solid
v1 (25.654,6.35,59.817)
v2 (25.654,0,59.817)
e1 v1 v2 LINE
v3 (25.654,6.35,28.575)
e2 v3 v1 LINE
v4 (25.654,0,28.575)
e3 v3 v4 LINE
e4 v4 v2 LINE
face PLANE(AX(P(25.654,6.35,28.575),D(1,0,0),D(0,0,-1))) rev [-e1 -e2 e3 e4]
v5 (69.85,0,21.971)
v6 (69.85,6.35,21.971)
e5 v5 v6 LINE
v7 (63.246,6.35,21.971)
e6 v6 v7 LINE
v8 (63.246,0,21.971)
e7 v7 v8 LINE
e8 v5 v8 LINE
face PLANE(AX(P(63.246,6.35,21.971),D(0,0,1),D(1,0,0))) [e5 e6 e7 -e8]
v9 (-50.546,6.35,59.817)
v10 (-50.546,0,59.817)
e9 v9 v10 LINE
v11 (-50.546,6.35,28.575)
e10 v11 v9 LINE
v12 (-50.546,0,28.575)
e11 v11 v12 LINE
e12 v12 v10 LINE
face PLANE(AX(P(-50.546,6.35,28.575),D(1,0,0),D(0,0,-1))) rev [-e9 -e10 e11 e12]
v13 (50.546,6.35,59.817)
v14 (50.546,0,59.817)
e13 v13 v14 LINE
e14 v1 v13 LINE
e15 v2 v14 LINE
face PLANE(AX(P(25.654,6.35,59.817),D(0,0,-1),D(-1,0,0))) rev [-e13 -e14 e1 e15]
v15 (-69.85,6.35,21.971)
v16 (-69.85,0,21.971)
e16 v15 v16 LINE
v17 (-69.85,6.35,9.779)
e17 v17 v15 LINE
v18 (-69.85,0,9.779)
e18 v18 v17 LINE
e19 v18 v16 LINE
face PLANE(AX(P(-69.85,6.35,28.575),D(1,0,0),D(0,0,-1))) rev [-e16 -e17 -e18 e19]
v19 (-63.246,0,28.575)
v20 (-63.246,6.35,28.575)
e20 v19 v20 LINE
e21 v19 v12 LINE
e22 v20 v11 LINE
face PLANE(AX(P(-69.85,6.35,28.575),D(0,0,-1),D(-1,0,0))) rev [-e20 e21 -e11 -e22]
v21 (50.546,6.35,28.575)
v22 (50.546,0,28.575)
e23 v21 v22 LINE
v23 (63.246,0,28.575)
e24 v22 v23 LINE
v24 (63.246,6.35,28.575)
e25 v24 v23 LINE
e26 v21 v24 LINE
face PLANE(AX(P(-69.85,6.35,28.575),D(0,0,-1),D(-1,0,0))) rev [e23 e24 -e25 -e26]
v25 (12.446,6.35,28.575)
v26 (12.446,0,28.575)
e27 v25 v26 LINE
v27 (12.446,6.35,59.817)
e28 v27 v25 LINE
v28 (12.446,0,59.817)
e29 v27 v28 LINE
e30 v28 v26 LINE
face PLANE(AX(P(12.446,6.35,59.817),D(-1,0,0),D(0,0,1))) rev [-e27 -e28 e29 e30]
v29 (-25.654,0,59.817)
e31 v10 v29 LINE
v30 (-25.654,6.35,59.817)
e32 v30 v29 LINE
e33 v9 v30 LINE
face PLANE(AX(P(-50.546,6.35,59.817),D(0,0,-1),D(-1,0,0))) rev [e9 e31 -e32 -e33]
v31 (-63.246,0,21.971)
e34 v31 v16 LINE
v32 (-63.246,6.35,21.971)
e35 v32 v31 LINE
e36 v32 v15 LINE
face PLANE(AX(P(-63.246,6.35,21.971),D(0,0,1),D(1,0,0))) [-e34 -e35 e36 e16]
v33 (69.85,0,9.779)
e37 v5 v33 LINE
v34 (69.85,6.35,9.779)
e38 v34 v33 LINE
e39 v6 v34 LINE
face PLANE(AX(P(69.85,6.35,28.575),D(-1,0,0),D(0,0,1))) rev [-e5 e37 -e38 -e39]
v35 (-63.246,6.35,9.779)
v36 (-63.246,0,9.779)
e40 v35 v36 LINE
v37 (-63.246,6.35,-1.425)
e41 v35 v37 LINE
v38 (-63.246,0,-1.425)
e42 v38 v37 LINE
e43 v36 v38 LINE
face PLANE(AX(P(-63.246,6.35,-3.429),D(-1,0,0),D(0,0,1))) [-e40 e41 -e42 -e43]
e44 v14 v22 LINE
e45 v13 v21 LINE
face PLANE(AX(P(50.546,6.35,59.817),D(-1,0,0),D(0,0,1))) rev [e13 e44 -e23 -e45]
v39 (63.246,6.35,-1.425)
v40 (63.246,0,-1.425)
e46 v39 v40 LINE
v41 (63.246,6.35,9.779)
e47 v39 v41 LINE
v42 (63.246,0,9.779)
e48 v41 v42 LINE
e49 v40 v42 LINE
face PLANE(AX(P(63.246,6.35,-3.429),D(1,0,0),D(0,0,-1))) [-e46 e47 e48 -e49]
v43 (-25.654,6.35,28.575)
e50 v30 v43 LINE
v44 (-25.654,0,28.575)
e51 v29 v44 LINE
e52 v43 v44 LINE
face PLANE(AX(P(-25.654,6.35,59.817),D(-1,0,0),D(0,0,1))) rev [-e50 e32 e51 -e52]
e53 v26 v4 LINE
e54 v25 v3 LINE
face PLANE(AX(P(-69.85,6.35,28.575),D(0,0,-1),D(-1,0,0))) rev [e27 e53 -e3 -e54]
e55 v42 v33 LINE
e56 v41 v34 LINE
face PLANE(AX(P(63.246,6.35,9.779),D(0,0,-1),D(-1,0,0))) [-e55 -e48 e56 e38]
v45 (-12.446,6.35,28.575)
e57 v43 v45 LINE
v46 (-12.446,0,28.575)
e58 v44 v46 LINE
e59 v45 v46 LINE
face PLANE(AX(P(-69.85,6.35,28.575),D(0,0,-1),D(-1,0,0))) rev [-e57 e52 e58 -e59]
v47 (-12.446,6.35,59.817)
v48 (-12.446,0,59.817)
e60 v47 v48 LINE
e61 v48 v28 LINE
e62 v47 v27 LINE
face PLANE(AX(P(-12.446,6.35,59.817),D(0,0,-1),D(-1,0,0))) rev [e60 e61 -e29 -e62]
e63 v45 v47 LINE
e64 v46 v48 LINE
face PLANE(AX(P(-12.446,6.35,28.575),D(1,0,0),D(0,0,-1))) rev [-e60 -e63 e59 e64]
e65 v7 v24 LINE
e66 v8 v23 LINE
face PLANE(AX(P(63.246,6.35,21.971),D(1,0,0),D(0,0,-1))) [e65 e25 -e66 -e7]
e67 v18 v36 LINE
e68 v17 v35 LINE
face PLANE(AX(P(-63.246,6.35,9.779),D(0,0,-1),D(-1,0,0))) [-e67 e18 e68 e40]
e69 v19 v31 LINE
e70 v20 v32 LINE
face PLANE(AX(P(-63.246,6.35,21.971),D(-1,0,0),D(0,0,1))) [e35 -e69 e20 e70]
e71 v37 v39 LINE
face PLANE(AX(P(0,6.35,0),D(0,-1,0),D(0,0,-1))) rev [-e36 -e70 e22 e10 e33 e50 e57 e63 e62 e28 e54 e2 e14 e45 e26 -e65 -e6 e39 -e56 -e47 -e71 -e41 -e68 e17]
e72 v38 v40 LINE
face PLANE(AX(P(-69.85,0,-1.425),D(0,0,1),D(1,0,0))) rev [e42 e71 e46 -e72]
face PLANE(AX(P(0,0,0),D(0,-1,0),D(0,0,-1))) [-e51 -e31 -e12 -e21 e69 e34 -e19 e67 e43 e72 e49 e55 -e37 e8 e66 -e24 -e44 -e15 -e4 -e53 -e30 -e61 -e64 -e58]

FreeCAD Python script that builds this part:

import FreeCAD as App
import Part
import Sketcher
Q = App.Units.Quantity


def add_polygon(sketch, points):
    """Adds a closed chain of lines whose ends are joined by coincident constraints."""
    first, n = sketch.GeometryCount, len(points)
    for a, b in zip(points, points[1:] + points[:1]):
        sketch.addGeometry(Part.LineSegment(App.Vector(*a, 0), App.Vector(*b, 0)), False)
    for i in range(n):
        sketch.addConstraint(Sketcher.Constraint("Coincident", first + i, 2, first + (i + 1) % n, 1))

doc = App.newDocument("Part")
body = doc.addObject("PartDesign::Body", "Body")

# Sketch on XZ plane
sketch1 = doc.addObject("Sketcher::SketchObject", "Sketch")
body.addObject(sketch1)
sketch1.AttachmentSupport = (doc.XZ_Plane, [""])
sketch1.MapMode = "FlatFace"
add_polygon(sketch1, [(-70, -29), (-70, 29), (70, 29), (70, -29)])  # lines 0-3
sketch1.addConstraint(Sketcher.Constraint("Vertical", 0))
sketch1.addConstraint(Sketcher.Constraint("Horizontal", 1))
sketch1.addConstraint(Sketcher.Constraint("Vertical", 2))
sketch1.addConstraint(Sketcher.Constraint("Horizontal", 3))
sketch1.addConstraint(Sketcher.Constraint("Symmetric", 0, 2, 2, 2, -1, 1))
sketch1.addConstraint(Sketcher.Constraint("DistanceX", 1, 1, 1, 2, Q("5.5 in")))
sketch1.addConstraint(Sketcher.Constraint("DistanceY", 0, 1, 0, 2, Q("2.25 in")))
pad1 = doc.addObject("PartDesign::Pad", "Pad")
body.addObject(pad1)
pad1.Profile = sketch1
pad1.Length = Q("0.25 in")
pad1.Reversed = True

# Sketch on XZ plane
sketch2 = doc.addObject("Sketcher::SketchObject", "Sketch001")
body.addObject(sketch2)
sketch2.AttachmentSupport = (doc.XZ_Plane, [""])
sketch2.MapMode = "FlatFace"
add_polygon(sketch2, [(-51, 29), (-51, 60), (-26, 60), (-26, 29)])  # lines 0-3
add_polygon(sketch2, [(-12, 29), (-12, 60), (12, 60), (12, 29)])  # lines 4-7
add_polygon(sketch2, [(26, 29), (26, 60), (51, 60), (51, 29)])  # lines 8-11
sketch2.addConstraint(Sketcher.Constraint("Vertical", 0))
sketch2.addConstraint(Sketcher.Constraint("Horizontal", 1))
sketch2.addConstraint(Sketcher.Constraint("Vertical", 2))
sketch2.addConstraint(Sketcher.Constraint("Horizontal", 3))
sketch2.addConstraint(Sketcher.Constraint("Vertical", 4))
sketch2.addConstraint(Sketcher.Constraint("Horizontal", 5))
sketch2.addConstraint(Sketcher.Constraint("Vertical", 6))
sketch2.addConstraint(Sketcher.Constraint("Horizontal", 7))
sketch2.addConstraint(Sketcher.Constraint("Vertical", 8))
sketch2.addConstraint(Sketcher.Constraint("Horizontal", 9))
sketch2.addConstraint(Sketcher.Constraint("Vertical", 10))
sketch2.addConstraint(Sketcher.Constraint("Horizontal", 11))
sketch2.addConstraint(Sketcher.Constraint("Symmetric", 1, 2, 8, 2, -2))
sketch2.addConstraint(Sketcher.Constraint("Symmetric", 3, 2, 10, 2, -2))
sketch2.addConstraint(Sketcher.Constraint("Horizontal", 1, 2, 4, 2))
sketch2.addConstraint(Sketcher.Constraint("Horizontal", 3, 2, 6, 2))
sketch2.addConstraint(Sketcher.Constraint("Equal", 3, 5))
sketch2.addConstraint(Sketcher.Constraint("DistanceX", 1, 1, 1, 2, Q("0.98 in")))
sketch2.addConstraint(Sketcher.Constraint("DistanceY", 0, 1, 0, 2, Q("1.23 in")))
sketch2.addConstraint(Sketcher.Constraint("DistanceX", 0, 2, 4, 2, Q("1.5 in")))
sketch2.addConstraint(Sketcher.Constraint("DistanceX", 4, 2, 8, 2, Q("1.5 in")))
sketch2.addConstraint(Sketcher.Constraint("DistanceY", -1, 1, 0, 2, Q("2.355 in")))
pad2 = doc.addObject("PartDesign::Pad", "Pad001")
body.addObject(pad2)
pad2.Profile = sketch2
pad2.Length = Q("0.25 in")
pad2.Reversed = True

# Sketch on XZ plane
sketch3 = doc.addObject("Sketcher::SketchObject", "Sketch002")
body.addObject(sketch3)
sketch3.AttachmentSupport = (doc.XZ_Plane, [""])
sketch3.MapMode = "FlatFace"
add_polygon(sketch3, [(63, -29), (63, -16), (76, -16), (76, -29)])  # lines 0-3
add_polygon(sketch3, [(-76, 22), (-76, 35), (-63, 35), (-63, 22)])  # lines 4-7
add_polygon(sketch3, [(63, -3), (63, 10), (76, 10), (76, -3)])  # lines 8-11
add_polygon(sketch3, [(63, 22), (63, 35), (76, 35), (76, 22)])  # lines 12-15
add_polygon(sketch3, [(-76, -3), (-76, 10), (-63, 10), (-63, -3)])  # lines 16-19
add_polygon(sketch3, [(-76, -29), (-76, -16), (-63, -16), (-63, -29)])  # lines 20-23
sketch3.addConstraint(Sketcher.Constraint("Vertical", 0))
sketch3.addConstraint(Sketcher.Constraint("Horizontal", 1))
sketch3.addConstraint(Sketcher.Constraint("Vertical", 2))
sketch3.addConstraint(Sketcher.Constraint("Horizontal", 3))
sketch3.addConstraint(Sketcher.Constraint("Vertical", 4))
sketch3.addConstraint(Sketcher.Constraint("Horizontal", 5))
sketch3.addConstraint(Sketcher.Constraint("Vertical", 6))
sketch3.addConstraint(Sketcher.Constraint("Horizontal", 7))
sketch3.addConstraint(Sketcher.Constraint("Vertical", 8))
sketch3.addConstraint(Sketcher.Constraint("Horizontal", 9))
sketch3.addConstraint(Sketcher.Constraint("Vertical", 10))
sketch3.addConstraint(Sketcher.Constraint("Horizontal", 11))
sketch3.addConstraint(Sketcher.Constraint("Vertical", 12))
sketch3.addConstraint(Sketcher.Constraint("Horizontal", 13))
sketch3.addConstraint(Sketcher.Constraint("Vertical", 14))
sketch3.addConstraint(Sketcher.Constraint("Horizontal", 15))
sketch3.addConstraint(Sketcher.Constraint("Vertical", 16))
sketch3.addConstraint(Sketcher.Constraint("Horizontal", 17))
sketch3.addConstraint(Sketcher.Constraint("Vertical", 18))
sketch3.addConstraint(Sketcher.Constraint("Horizontal", 19))
sketch3.addConstraint(Sketcher.Constraint("Vertical", 20))
sketch3.addConstraint(Sketcher.Constraint("Horizontal", 21))
sketch3.addConstraint(Sketcher.Constraint("Vertical", 22))
sketch3.addConstraint(Sketcher.Constraint("Horizontal", 23))
sketch3.addConstraint(Sketcher.Constraint("Symmetric", 5, 2, 12, 2, -2))
sketch3.addConstraint(Sketcher.Constraint("Symmetric", 7, 2, 14, 2, -2))
sketch3.addConstraint(Sketcher.Constraint("Symmetric", 9, 2, 16, 2, -2))
sketch3.addConstraint(Sketcher.Constraint("Symmetric", 11, 2, 18, 2, -2))
sketch3.addConstraint(Sketcher.Constraint("Symmetric", 1, 2, 20, 2, -2))
sketch3.addConstraint(Sketcher.Constraint("Symmetric", 3, 2, 22, 2, -2))
sketch3.addConstraint(Sketcher.Constraint("Vertical", 3, 2, 8, 2))
sketch3.addConstraint(Sketcher.Constraint("Vertical", 2, 2, 9, 2))
sketch3.addConstraint(Sketcher.Constraint("Vertical", 11, 2, 12, 2))
sketch3.addConstraint(Sketcher.Constraint("Vertical", 10, 2, 13, 2))
sketch3.addConstraint(Sketcher.Constraint("Equal", 23, 0))
sketch3.addConstraint(Sketcher.Constraint("Equal", 2, 4))
sketch3.addConstraint(Sketcher.Constraint("Equal", 6, 8))
sketch3.addConstraint(Sketcher.Constraint("DistanceY", 0, 2, 4, 2, Q("2 in")))
sketch3.addConstraint(Sketcher.Constraint("DistanceY", 0, 2, 8, 2, Q("1 in")))
sketch3.addConstraint(Sketcher.Constraint("DistanceX", 1, 1, 1, 2, Q("0.52 in")))
sketch3.addConstraint(Sketcher.Constraint("DistanceX", 4, 2, 0, 2, Q("5.5 in")))
sketch3.addConstraint(Sketcher.Constraint("DistanceY", 0, 2, -1, 1, Q("0.615 in")))
pocket1 = doc.addObject("PartDesign::Pocket", "Pocket")
body.addObject(pocket1)
pocket1.Profile = sketch3
pocket1.Type = "ThroughAll"

# Sketch on XZ plane
sketch4 = doc.addObject("Sketcher::SketchObject", "Sketch003")
body.addObject(sketch4)
sketch4.AttachmentSupport = (doc.XZ_Plane, [""])
sketch4.MapMode = "FlatFace"
sketch4.AttachmentOffset = App.Placement(App.Vector(0, 0, -0.25 * 25.4), App.Rotation())
add_polygon(sketch4, [(-140, -29), (-140, -16), (156, -16), (156, -29)])  # lines 0-3
sketch4.addConstraint(Sketcher.Constraint("Vertical", 0))
sketch4.addConstraint(Sketcher.Constraint("Horizontal", 1))
sketch4.addConstraint(Sketcher.Constraint("Vertical", 2))
sketch4.addConstraint(Sketcher.Constraint("Horizontal", 3))
sketch4.addConstraint(Sketcher.Constraint("DistanceY", 0, 1, 0, 2, Q("0.5 in")))
sketch4.addConstraint(Sketcher.Constraint("DistanceY", 0, 2, -1, 1, Q("0.625 in")))
sketch4.addConstraint(Sketcher.Constraint("DistanceX", 1, 1, 1, 2, 295.464136))
sketch4.addConstraint(Sketcher.Constraint("DistanceX", -1, 1, 1, 2, 155.695321))
pocket2 = doc.addObject("PartDesign::Pocket", "Pocket001")
body.addObject(pocket2)
pocket2.Profile = sketch4
pocket2.Type = "ThroughAll"
pocket2.Reversed = True

# Sketch on XZ plane
sketch5 = doc.addObject("Sketcher::SketchObject", "Sketch004")
body.addObject(sketch5)
sketch5.AttachmentSupport = (doc.XZ_Plane, [""])
sketch5.MapMode = "FlatFace"
sketch5.AttachmentOffset = App.Placement(App.Vector(0, 0, -0.25 * 25.4), App.Rotation())
add_polygon(sketch5, [(-70, -16), (-70, -3), (70, -3), (70, -16)])  # lines 0-3
sketch5.addConstraint(Sketcher.Constraint("Vertical", 0))
sketch5.addConstraint(Sketcher.Constraint("Horizontal", 1))
sketch5.addConstraint(Sketcher.Constraint("Vertical", 2))
sketch5.addConstraint(Sketcher.Constraint("Horizontal", 3))
sketch5.addConstraint(Sketcher.Constraint("DistanceX", 1, 1, 1, 2, Q("5.5 in")))
sketch5.addConstraint(Sketcher.Constraint("DistanceY", 0, 1, 0, 2, Q("0.49 in")))
sketch5.addConstraint(Sketcher.Constraint("DistanceX", 0, 2, -1, 1, Q("2.75 in")))
sketch5.addConstraint(Sketcher.Constraint("DistanceY", 0, 2, -1, 1, Q("0.135 in")))
pad3 = doc.addObject("PartDesign::Pad", "Pad002")
body.addObject(pad3)
pad3.Profile = sketch5
pad3.Length = Q("0.25 in")

# Sketch on XZ plane
sketch6 = doc.addObject("Sketcher::SketchObject", "Sketch005")
body.addObject(sketch6)
sketch6.AttachmentSupport = (doc.XZ_Plane, [""])
sketch6.MapMode = "FlatFace"
sketch6.AttachmentOffset = App.Placement(App.Vector(0, 0, -0.25 * 25.4), App.Rotation())
add_polygon(sketch6, [(-70, -16), (-70, -1), (70, -1), (70, -16)])  # lines 0-3
sketch6.addConstraint(Sketcher.Constraint("Vertical", 0))
sketch6.addConstraint(Sketcher.Constraint("Horizontal", 1))
sketch6.addConstraint(Sketcher.Constraint("Vertical", 2))
sketch6.addConstraint(Sketcher.Constraint("Horizontal", 3))
sketch6.addConstraint(Sketcher.Constraint("DistanceX", 1, 1, 1, 2, Q("5.5 in")))
sketch6.addConstraint(Sketcher.Constraint("DistanceX", 0, 2, -1, 1, Q("2.75 in")))
sketch6.addConstraint(Sketcher.Constraint("DistanceY", 2, 2, -1, 1, Q("0.625 in")))
sketch6.addConstraint(Sketcher.Constraint("DistanceY", 0, 1, 0, 2, 14.45))
pocket3 = doc.addObject("PartDesign::Pocket", "Pocket002")
body.addObject(pocket3)
pocket3.Profile = sketch6
pocket3.Type = "ThroughAll"
pocket3.Reversed = True

doc.recompute()
